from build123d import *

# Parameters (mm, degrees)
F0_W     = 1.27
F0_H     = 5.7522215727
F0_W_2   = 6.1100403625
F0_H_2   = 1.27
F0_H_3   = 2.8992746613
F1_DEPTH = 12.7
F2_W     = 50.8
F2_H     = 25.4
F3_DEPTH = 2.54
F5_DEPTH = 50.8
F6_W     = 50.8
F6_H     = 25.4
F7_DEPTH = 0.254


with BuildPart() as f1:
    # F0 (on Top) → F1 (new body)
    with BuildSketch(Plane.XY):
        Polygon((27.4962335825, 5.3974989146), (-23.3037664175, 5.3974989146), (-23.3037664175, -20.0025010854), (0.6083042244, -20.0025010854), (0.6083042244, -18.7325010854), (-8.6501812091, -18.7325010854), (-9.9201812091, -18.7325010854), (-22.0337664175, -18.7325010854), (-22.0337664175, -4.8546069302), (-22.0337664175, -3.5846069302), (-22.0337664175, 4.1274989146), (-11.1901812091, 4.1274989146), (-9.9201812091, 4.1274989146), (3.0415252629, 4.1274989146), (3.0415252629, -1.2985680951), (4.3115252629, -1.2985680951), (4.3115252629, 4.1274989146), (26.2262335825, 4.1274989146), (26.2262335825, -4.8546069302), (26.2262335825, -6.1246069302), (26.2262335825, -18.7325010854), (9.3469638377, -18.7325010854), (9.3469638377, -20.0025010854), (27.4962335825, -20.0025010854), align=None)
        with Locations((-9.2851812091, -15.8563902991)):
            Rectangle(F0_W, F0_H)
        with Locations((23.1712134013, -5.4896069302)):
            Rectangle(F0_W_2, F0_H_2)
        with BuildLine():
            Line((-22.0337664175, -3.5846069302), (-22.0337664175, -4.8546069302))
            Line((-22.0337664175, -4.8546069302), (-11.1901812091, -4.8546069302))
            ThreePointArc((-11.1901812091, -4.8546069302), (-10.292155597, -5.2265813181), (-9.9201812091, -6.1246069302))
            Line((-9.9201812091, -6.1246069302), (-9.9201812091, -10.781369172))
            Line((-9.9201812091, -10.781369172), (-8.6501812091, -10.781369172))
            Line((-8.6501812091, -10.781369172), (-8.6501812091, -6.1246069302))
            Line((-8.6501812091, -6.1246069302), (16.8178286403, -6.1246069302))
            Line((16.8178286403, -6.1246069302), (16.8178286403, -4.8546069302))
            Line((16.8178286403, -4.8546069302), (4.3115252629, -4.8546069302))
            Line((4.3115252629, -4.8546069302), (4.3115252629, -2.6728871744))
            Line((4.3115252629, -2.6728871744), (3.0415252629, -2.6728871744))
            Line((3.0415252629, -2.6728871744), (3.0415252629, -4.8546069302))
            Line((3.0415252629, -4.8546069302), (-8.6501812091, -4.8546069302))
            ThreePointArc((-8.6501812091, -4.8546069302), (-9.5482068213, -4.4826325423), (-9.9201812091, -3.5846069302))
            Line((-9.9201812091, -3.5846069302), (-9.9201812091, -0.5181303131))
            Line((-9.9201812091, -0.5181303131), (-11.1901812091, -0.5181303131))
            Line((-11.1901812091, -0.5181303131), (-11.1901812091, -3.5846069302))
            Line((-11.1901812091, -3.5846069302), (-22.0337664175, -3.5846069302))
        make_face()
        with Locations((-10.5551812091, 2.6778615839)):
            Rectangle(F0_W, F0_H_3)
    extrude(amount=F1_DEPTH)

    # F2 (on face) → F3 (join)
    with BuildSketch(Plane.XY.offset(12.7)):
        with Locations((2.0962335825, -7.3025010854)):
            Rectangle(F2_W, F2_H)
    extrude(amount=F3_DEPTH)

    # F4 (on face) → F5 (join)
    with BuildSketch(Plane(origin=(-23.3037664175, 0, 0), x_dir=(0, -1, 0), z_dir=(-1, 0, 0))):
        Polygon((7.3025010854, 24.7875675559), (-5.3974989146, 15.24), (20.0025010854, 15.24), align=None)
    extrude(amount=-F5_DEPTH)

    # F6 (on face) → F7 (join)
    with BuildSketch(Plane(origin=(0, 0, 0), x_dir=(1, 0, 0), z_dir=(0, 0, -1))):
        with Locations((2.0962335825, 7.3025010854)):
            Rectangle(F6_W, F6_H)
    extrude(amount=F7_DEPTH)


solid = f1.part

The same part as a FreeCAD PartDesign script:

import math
import FreeCAD as App
import Part
import Sketcher

V = App.Vector
Q = App.Units.Quantity

doc = App.newDocument("Part")
body = doc.addObject("PartDesign::Body", "Body")

sketch1 = body.newObject("Sketcher::SketchObject", "Sketch")
sketch1.AttachmentSupport = (doc.getObject("XY_Plane"), [""])
sketch1.MapMode = "FlatFace"
sketch1.addGeometry(Part.LineSegment(V(27.5, 5.4, 0), V(-23.3, 5.4, 0)), False)
sketch1.addGeometry(Part.LineSegment(V(-23.3, 5.4, 0), V(-23.3, -20, 0)), False)
sketch1.addGeometry(Part.LineSegment(V(-23.3, -20, 0), V(0.6, -20, 0)), False)
sketch1.addGeometry(Part.LineSegment(V(0.6, -20, 0), V(0.6, -18.7, 0)), False)
sketch1.addGeometry(Part.LineSegment(V(0.6, -18.7, 0), V(-8.7, -18.7, 0)), False)
sketch1.addGeometry(Part.LineSegment(V(-8.7, -18.7, 0), V(-8.7, -13, 0)), False)
sketch1.addGeometry(Part.LineSegment(V(-8.7, -13, 0), V(-9.9, -13, 0)), False)
sketch1.addGeometry(Part.LineSegment(V(-9.9, -13, 0), V(-9.9, -18.7, 0)), False)
sketch1.addGeometry(Part.LineSegment(V(-9.9, -18.7, 0), V(-22, -18.7, 0)), False)
sketch1.addGeometry(Part.LineSegment(V(-22, -18.7, 0), V(-22, -4.9, 0)), False)
sketch1.addGeometry(Part.LineSegment(V(-22, -4.9, 0), V(-11.2, -4.9, 0)), False)
sketch1.addGeometry(Part.ArcOfCircle(Part.Circle(V(-11.2, -6.1, 0), V(0, 0, 1), 1.3), math.radians(0), math.radians(90)), False)
sketch1.addGeometry(Part.LineSegment(V(-9.9, -6.1, 0), V(-9.9, -10.8, 0)), False)
sketch1.addGeometry(Part.LineSegment(V(-9.9, -10.8, 0), V(-8.7, -10.8, 0)), False)
sketch1.addGeometry(Part.LineSegment(V(-8.7, -10.8, 0), V(-8.7, -6.1, 0)), False)
sketch1.addGeometry(Part.LineSegment(V(-8.7, -6.1, 0), V(16.8, -6.1, 0)), False)
sketch1.addGeometry(Part.LineSegment(V(16.8, -6.1, 0), V(16.8, -4.9, 0)), False)
sketch1.addGeometry(Part.LineSegment(V(16.8, -4.9, 0), V(4.3, -4.9, 0)), False)
sketch1.addGeometry(Part.LineSegment(V(4.3, -4.9, 0), V(4.3, -2.7, 0)), False)
sketch1.addGeometry(Part.LineSegment(V(4.3, -2.7, 0), V(3, -2.7, 0)), False)
sketch1.addGeometry(Part.LineSegment(V(3, -2.7, 0), V(3, -4.9, 0)), False)
sketch1.addGeometry(Part.LineSegment(V(3, -4.9, 0), V(-8.7, -4.9, 0)), False)
sketch1.addGeometry(Part.ArcOfCircle(Part.Circle(V(-8.7, -3.6, 0), V(0, 0, 1), 1.3), math.radians(180), math.radians(270)), False)
sketch1.addGeometry(Part.LineSegment(V(-9.9, -3.6, 0), V(-9.9, -0.5, 0)), False)
sketch1.addGeometry(Part.LineSegment(V(-9.9, -0.5, 0), V(-11.2, -0.5, 0)), False)
sketch1.addGeometry(Part.LineSegment(V(-11.2, -0.5, 0), V(-11.2, -3.6, 0)), False)
sketch1.addGeometry(Part.LineSegment(V(-11.2, -3.6, 0), V(-22, -3.6, 0)), False)
sketch1.addGeometry(Part.LineSegment(V(-22, -3.6, 0), V(-22, 4.1, 0)), False)
sketch1.addGeometry(Part.LineSegment(V(-22, 4.1, 0), V(-11.2, 4.1, 0)), False)
sketch1.addGeometry(Part.LineSegment(V(-11.2, 4.1, 0), V(-11.2, 1.2, 0)), False)
sketch1.addGeometry(Part.LineSegment(V(-11.2, 1.2, 0), V(-9.9, 1.2, 0)), False)
sketch1.addGeometry(Part.LineSegment(V(-9.9, 1.2, 0), V(-9.9, 4.1, 0)), False)
sketch1.addGeometry(Part.LineSegment(V(-9.9, 4.1, 0), V(3, 4.1, 0)), False)
sketch1.addGeometry(Part.LineSegment(V(3, 4.1, 0), V(3, -1.3, 0)), False)
sketch1.addGeometry(Part.LineSegment(V(3, -1.3, 0), V(4.3, -1.3, 0)), False)
sketch1.addGeometry(Part.LineSegment(V(4.3, -1.3, 0), V(4.3, 4.1, 0)), False)
sketch1.addGeometry(Part.LineSegment(V(4.3, 4.1, 0), V(26.2, 4.1, 0)), False)
sketch1.addGeometry(Part.LineSegment(V(26.2, 4.1, 0), V(26.2, -4.9, 0)), False)
sketch1.addGeometry(Part.LineSegment(V(26.2, -4.9, 0), V(20.1, -4.9, 0)), False)
sketch1.addGeometry(Part.LineSegment(V(20.1, -4.9, 0), V(20.1, -6.1, 0)), False)
sketch1.addGeometry(Part.LineSegment(V(20.1, -6.1, 0), V(26.2, -6.1, 0)), False)
sketch1.addGeometry(Part.LineSegment(V(26.2, -6.1, 0), V(26.2, -18.7, 0)), False)
sketch1.addGeometry(Part.LineSegment(V(26.2, -18.7, 0), V(9.3, -18.7, 0)), False)
sketch1.addGeometry(Part.LineSegment(V(9.3, -18.7, 0), V(9.3, -20, 0)), False)
sketch1.addGeometry(Part.LineSegment(V(9.3, -20, 0), V(27.5, -20, 0)), False)
sketch1.addGeometry(Part.LineSegment(V(27.5, -20, 0), V(27.5, 5.4, 0)), False)
sketch1.addConstraint(Sketcher.Constraint("Coincident", 0, 2, 1, 1))
sketch1.addConstraint(Sketcher.Constraint("Coincident", 1, 2, 2, 1))
sketch1.addConstraint(Sketcher.Constraint("Coincident", 2, 2, 3, 1))
sketch1.addConstraint(Sketcher.Constraint("Coincident", 3, 2, 4, 1))
sketch1.addConstraint(Sketcher.Constraint("Coincident", 4, 2, 5, 1))
sketch1.addConstraint(Sketcher.Constraint("Coincident", 5, 2, 6, 1))
sketch1.addConstraint(Sketcher.Constraint("Coincident", 6, 2, 7, 1))
sketch1.addConstraint(Sketcher.Constraint("Coincident", 7, 2, 8, 1))
sketch1.addConstraint(Sketcher.Constraint("Coincident", 8, 2, 9, 1))
sketch1.addConstraint(Sketcher.Constraint("Coincident", 9, 2, 10, 1))
sketch1.addConstraint(Sketcher.Constraint("Tangent", 10, 2, 11, 2))
sketch1.addConstraint(Sketcher.Constraint("Tangent", 11, 1, 12, 1))
sketch1.addConstraint(Sketcher.Constraint("Coincident", 12, 2, 13, 1))
sketch1.addConstraint(Sketcher.Constraint("Coincident", 13, 2, 14, 1))
sketch1.addConstraint(Sketcher.Constraint("Coincident", 14, 2, 15, 1))
sketch1.addConstraint(Sketcher.Constraint("Coincident", 15, 2, 16, 1))
sketch1.addConstraint(Sketcher.Constraint("Coincident", 16, 2, 17, 1))
sketch1.addConstraint(Sketcher.Constraint("Coincident", 17, 2, 18, 1))
sketch1.addConstraint(Sketcher.Constraint("Coincident", 18, 2, 19, 1))
sketch1.addConstraint(Sketcher.Constraint("Coincident", 19, 2, 20, 1))
sketch1.addConstraint(Sketcher.Constraint("Coincident", 20, 2, 21, 1))
sketch1.addConstraint(Sketcher.Constraint("Tangent", 21, 2, 22, 2))
sketch1.addConstraint(Sketcher.Constraint("Tangent", 22, 1, 23, 1))
sketch1.addConstraint(Sketcher.Constraint("Coincident", 23, 2, 24, 1))
sketch1.addConstraint(Sketcher.Constraint("Coincident", 24, 2, 25, 1))
sketch1.addConstraint(Sketcher.Constraint("Coincident", 25, 2, 26, 1))
sketch1.addConstraint(Sketcher.Constraint("Coincident", 26, 2, 27, 1))
sketch1.addConstraint(Sketcher.Constraint("Coincident", 27, 2, 28, 1))
sketch1.addConstraint(Sketcher.Constraint("Coincident", 28, 2, 29, 1))
sketch1.addConstraint(Sketcher.Constraint("Coincident", 29, 2, 30, 1))
sketch1.addConstraint(Sketcher.Constraint("Coincident", 30, 2, 31, 1))
sketch1.addConstraint(Sketcher.Constraint("Coincident", 31, 2, 32, 1))
sketch1.addConstraint(Sketcher.Constraint("Coincident", 32, 2, 33, 1))
sketch1.addConstraint(Sketcher.Constraint("Coincident", 33, 2, 34, 1))
sketch1.addConstraint(Sketcher.Constraint("Coincident", 34, 2, 35, 1))
sketch1.addConstraint(Sketcher.Constraint("Coincident", 35, 2, 36, 1))
sketch1.addConstraint(Sketcher.Constraint("Coincident", 36, 2, 37, 1))
sketch1.addConstraint(Sketcher.Constraint("Coincident", 37, 2, 38, 1))
sketch1.addConstraint(Sketcher.Constraint("Coincident", 38, 2, 39, 1))
sketch1.addConstraint(Sketcher.Constraint("Coincident", 39, 2, 40, 1))
sketch1.addConstraint(Sketcher.Constraint("Coincident", 40, 2, 41, 1))
sketch1.addConstraint(Sketcher.Constraint("Coincident", 41, 2, 42, 1))
sketch1.addConstraint(Sketcher.Constraint("Coincident", 42, 2, 43, 1))
sketch1.addConstraint(Sketcher.Constraint("Coincident", 43, 2, 44, 1))
sketch1.addConstraint(Sketcher.Constraint("Coincident", 44, 2, 45, 1))
sketch1.addConstraint(Sketcher.Constraint("Coincident", 45, 2, 0, 1))
sketch1.addConstraint(Sketcher.Constraint("Horizontal", 0))
sketch1.addConstraint(Sketcher.Constraint("Vertical", 1))
sketch1.addConstraint(Sketcher.Constraint("Horizontal", 2))
sketch1.addConstraint(Sketcher.Constraint("Vertical", 3))
sketch1.addConstraint(Sketcher.Constraint("Horizontal", 4))
sketch1.addConstraint(Sketcher.Constraint("Vertical", 5))
sketch1.addConstraint(Sketcher.Constraint("Horizontal", 6))
sketch1.addConstraint(Sketcher.Constraint("Vertical", 7))
sketch1.addConstraint(Sketcher.Constraint("Horizontal", 8))
sketch1.addConstraint(Sketcher.Constraint("Vertical", 9))
sketch1.addConstraint(Sketcher.Constraint("Horizontal", 10))
sketch1.addConstraint(Sketcher.Constraint("Vertical", 12))
sketch1.addConstraint(Sketcher.Constraint("Horizontal", 13))
sketch1.addConstraint(Sketcher.Constraint("Vertical", 14))
sketch1.addConstraint(Sketcher.Constraint("Horizontal", 15))
sketch1.addConstraint(Sketcher.Constraint("Vertical", 16))
sketch1.addConstraint(Sketcher.Constraint("Horizontal", 17))
sketch1.addConstraint(Sketcher.Constraint("Vertical", 18))
sketch1.addConstraint(Sketcher.Constraint("Horizontal", 19))
sketch1.addConstraint(Sketcher.Constraint("Vertical", 20))
sketch1.addConstraint(Sketcher.Constraint("Horizontal", 21))
sketch1.addConstraint(Sketcher.Constraint("Vertical", 23))
sketch1.addConstraint(Sketcher.Constraint("Horizontal", 24))
sketch1.addConstraint(Sketcher.Constraint("Vertical", 25))
sketch1.addConstraint(Sketcher.Constraint("Horizontal", 26))
sketch1.addConstraint(Sketcher.Constraint("Vertical", 27))
sketch1.addConstraint(Sketcher.Constraint("Horizontal", 28))
sketch1.addConstraint(Sketcher.Constraint("Vertical", 29))
sketch1.addConstraint(Sketcher.Constraint("Horizontal", 30))
sketch1.addConstraint(Sketcher.Constraint("Vertical", 31))
sketch1.addConstraint(Sketcher.Constraint("Horizontal", 32))
sketch1.addConstraint(Sketcher.Constraint("Vertical", 33))
sketch1.addConstraint(Sketcher.Constraint("Horizontal", 34))
sketch1.addConstraint(Sketcher.Constraint("Vertical", 35))
sketch1.addConstraint(Sketcher.Constraint("Horizontal", 36))
sketch1.addConstraint(Sketcher.Constraint("Vertical", 37))
sketch1.addConstraint(Sketcher.Constraint("Horizontal", 38))
sketch1.addConstraint(Sketcher.Constraint("Vertical", 39))
sketch1.addConstraint(Sketcher.Constraint("Horizontal", 40))
sketch1.addConstraint(Sketcher.Constraint("Vertical", 41))
sketch1.addConstraint(Sketcher.Constraint("Horizontal", 42))
sketch1.addConstraint(Sketcher.Constraint("Vertical", 43))
sketch1.addConstraint(Sketcher.Constraint("Horizontal", 44))
sketch1.addConstraint(Sketcher.Constraint("Vertical", 45))
sketch1.addConstraint(Sketcher.Constraint("Equal", 11, 22))
sketch1.addConstraint(Sketcher.Constraint("Horizontal", 4, 2, 7, 2))
sketch1.addConstraint(Sketcher.Constraint("Horizontal", 11, 1, 14, 2))
sketch1.addConstraint(Sketcher.Constraint("Horizontal", 10, 2, 16, 2))
sketch1.addConstraint(Sketcher.Constraint("Horizontal", 17, 2, 20, 2))
sketch1.addConstraint(Sketcher.Constraint("Horizontal", 22, 1, 25, 2))
sketch1.addConstraint(Sketcher.Constraint("Horizontal", 28, 2, 31, 2))
sketch1.addConstraint(Sketcher.Constraint("Horizontal", 32, 2, 35, 2))
sketch1.addConstraint(Sketcher.Constraint("Horizontal", 21, 2, 37, 2))
sketch1.addConstraint(Sketcher.Constraint("Horizontal", 15, 2, 39, 2))
sketch1.addConstraint(Sketcher.Constraint("Horizontal", 8, 2, 41, 2))
sketch1.addConstraint(Sketcher.Constraint("Horizontal", 2, 2, 43, 2))
sketch1.addConstraint(Sketcher.Constraint("Vertical", 22, 3, 4, 2))
sketch1.addConstraint(Sketcher.Constraint("Vertical", 7, 2, 11, 1))
sketch1.addConstraint(Sketcher.Constraint("Vertical", 5, 2, 13, 2))
sketch1.addConstraint(Sketcher.Constraint("Vertical", 12, 2, 22, 1))
sketch1.addConstraint(Sketcher.Constraint("Vertical", 10, 2, 24, 2))
sketch1.addConstraint(Sketcher.Constraint("Vertical", 9, 2, 26, 2))
sketch1.addConstraint(Sketcher.Constraint("Vertical", 25, 2, 28, 2))
sketch1.addConstraint(Sketcher.Constraint("Vertical", 23, 2, 30, 2))
sketch1.addConstraint(Sketcher.Constraint("Vertical", 20, 2, 32, 2))
sketch1.addConstraint(Sketcher.Constraint("Vertical", 18, 2, 34, 2))
sketch1.addConstraint(Sketcher.Constraint("Vertical", 37, 2, 40, 2))
sketch1.addConstraint(Sketcher.Constraint("Equal", 13, 19))
sketch1.addConstraint(Sketcher.Constraint("Equal", 34, 3))
sketch1.addConstraint(Sketcher.Constraint("DistanceX", 0, 2, 0, 1, Q("2 in")))
sketch1.addConstraint(Sketcher.Constraint("DistanceY", 1, 2, 1, 1, Q("1 in")))
sketch1.addConstraint(Sketcher.Constraint("Radius", 11, Q("0.05 in")))
sketch1.addConstraint(Sketcher.Constraint("DistanceX", 1, 2, 8, 2, Q("0.05 in")))
sketch1.addConstraint(Sketcher.Constraint("DistanceY", 27, 2, 0, 2, Q("0.05 in")))
sketch1.addConstraint(Sketcher.Constraint("DistanceX", 41, 2, 44, 2, Q("0.05 in")))
sketch1.addConstraint(Sketcher.Constraint("DistanceY", -1, 1, 0, 2, Q("0.2125 in")))
sketch1.addConstraint(Sketcher.Constraint("DistanceX", 2, 1, 2, 2, 23.912071))
sketch1.addConstraint(Sketcher.Constraint("DistanceX", 15, 1, 15, 2, 25.46801))
sketch1.addConstraint(Sketcher.Constraint("DistanceX", 36, 1, 36, 2, 21.914708))
sketch1.addConstraint(Sketcher.Constraint("DistanceX", 38, 2, 38, 1, 6.11004))
sketch1.addConstraint(Sketcher.Constraint("DistanceX", 42, 2, 42, 1, 16.87927))
sketch1.addConstraint(Sketcher.Constraint("DistanceY", 5, 1, 5, 2, 5.752222))
sketch1.addConstraint(Sketcher.Constraint("DistanceY", 18, 1, 18, 2, 2.18172))
sketch1.addConstraint(Sketcher.Constraint("DistanceX", 4, 2, 4, 1, 9.258485))
sketch1.addConstraint(Sketcher.Constraint("DistanceY", 9, 1, 9, 2, 13.877894))
sketch1.addConstraint(Sketcher.Constraint("DistanceY", 12, 2, 12, 1, 4.656762))
sketch1.addConstraint(Sketcher.Constraint("DistanceY", 23, 1, 23, 2, 3.066477))
sketch1.addConstraint(Sketcher.Constraint("DistanceY", 29, 2, 29, 1, 2.899275))
sketch1.addConstraint(Sketcher.Constraint("DistanceY", 33, 2, 33, 1, 5.426067))
sketch1.addConstraint(Sketcher.Constraint("DistanceX", 11, 3, -1, 1, 11.190181))
pad1 = body.newObject("PartDesign::Pad", "Pad")
pad1.Profile = sketch1
pad1.Length = Q("0.5 in")

sketch2 = body.newObject("Sketcher::SketchObject", "Sketch001")
sketch2.AttachmentSupport = (doc.getObject("XY_Plane"), [""])
sketch2.MapMode = "FlatFace"
sketch2.AttachmentOffset = App.Placement(V(0, 0, 0.5 * 25.4), App.Rotation())
sketch2.addGeometry(Part.LineSegment(V(-23, 5, 0), V(-23, -20, 0)), False)
sketch2.addGeometry(Part.LineSegment(V(-23, -20, 0), V(27, -20, 0)), False)
sketch2.addGeometry(Part.LineSegment(V(27, -20, 0), V(27, 5, 0)), False)
sketch2.addGeometry(Part.LineSegment(V(27, 5, 0), V(-23, 5, 0)), False)
sketch2.addConstraint(Sketcher.Constraint("Coincident", 0, 2, 1, 1))
sketch2.addConstraint(Sketcher.Constraint("Coincident", 1, 2, 2, 1))
sketch2.addConstraint(Sketcher.Constraint("Coincident", 2, 2, 3, 1))
sketch2.addConstraint(Sketcher.Constraint("Coincident", 3, 2, 0, 1))
sketch2.addConstraint(Sketcher.Constraint("Vertical", 0))
sketch2.addConstraint(Sketcher.Constraint("Horizontal", 1))
sketch2.addConstraint(Sketcher.Constraint("Vertical", 2))
sketch2.addConstraint(Sketcher.Constraint("Horizontal", 3))
sketch2.addConstraint(Sketcher.Constraint("DistanceX", 1, 1, 1, 2, Q("2 in")))
sketch2.addConstraint(Sketcher.Constraint("DistanceY", 0, 2, 0, 1, Q("1 in")))
sketch2.addConstraint(Sketcher.Constraint("DistanceY", 0, 2, -1, 1, Q("0.7875 in")))
sketch2.addConstraint(Sketcher.Constraint("DistanceX", 0, 2, -1, 1, 23.303766))
pad2 = body.newObject("PartDesign::Pad", "Pad001")
pad2.Profile = sketch2
pad2.Length = Q("0.1 in")

sketch3 = body.newObject("Sketcher::SketchObject", "Sketch002")
sketch3.AttachmentSupport = (doc.getObject("YZ_Plane"), [""])
sketch3.MapMode = "FlatFace"
sketch3.AttachmentOffset = App.Placement(V(0, 0, -23.303766), App.Rotation())
sketch3.addGeometry(Part.LineSegment(V(-7, 25, 0), V(5, 15, 0)), False)
sketch3.addGeometry(Part.LineSegment(V(5, 15, 0), V(-20, 15, 0)), False)
sketch3.addGeometry(Part.LineSegment(V(-20, 15, 0), V(-7, 25, 0)), False)
sketch3.addConstraint(Sketcher.Constraint("Coincident", 0, 2, 1, 1))
sketch3.addConstraint(Sketcher.Constraint("Coincident", 1, 2, 2, 1))
sketch3.addConstraint(Sketcher.Constraint("Coincident", 2, 2, 0, 1))
sketch3.addConstraint(Sketcher.Constraint("Horizontal", 1))
sketch3.addConstraint(Sketcher.Constraint("Equal", 0, 2))
sketch3.addConstraint(Sketcher.Constraint("DistanceX", 1, 2, 1, 1, Q("1 in")))
sketch3.addConstraint(Sketcher.Constraint("DistanceY", -1, 1, 0, 2, Q("0.6 in")))
sketch3.addConstraint(Sketcher.Constraint("DistanceX", -1, 1, 0, 2, Q("0.2125 in")))
sketch3.addConstraint(Sketcher.Constraint("Distance", 0, 15.888551))
pad3 = body.newObject("PartDesign::Pad", "Pad002")
pad3.Profile = sketch3
pad3.Length = Q("2 in")

sketch4 = body.newObject("Sketcher::SketchObject", "Sketch003")
sketch4.AttachmentSupport = (doc.getObject("XY_Plane"), [""])
sketch4.MapMode = "FlatFace"
sketch4.addGeometry(Part.LineSegment(V(-23, -20, 0), V(-23, 5, 0)), False)
sketch4.addGeometry(Part.LineSegment(V(-23, 5, 0), V(27, 5, 0)), False)
sketch4.addGeometry(Part.LineSegment(V(27, 5, 0), V(27, -20, 0)), False)
sketch4.addGeometry(Part.LineSegment(V(27, -20, 0), V(-23, -20, 0)), False)
sketch4.addConstraint(Sketcher.Constraint("Coincident", 0, 2, 1, 1))
sketch4.addConstraint(Sketcher.Constraint("Coincident", 1, 2, 2, 1))
sketch4.addConstraint(Sketcher.Constraint("Coincident", 2, 2, 3, 1))
sketch4.addConstraint(Sketcher.Constraint("Coincident", 3, 2, 0, 1))
sketch4.addConstraint(Sketcher.Constraint("Vertical", 0))
sketch4.addConstraint(Sketcher.Constraint("Horizontal", 1))
sketch4.addConstraint(Sketcher.Constraint("Vertical", 2))
sketch4.addConstraint(Sketcher.Constraint("Horizontal", 3))
sketch4.addConstraint(Sketcher.Constraint("DistanceX", 1, 1, 1, 2, Q("2 in")))
sketch4.addConstraint(Sketcher.Constraint("DistanceY", 0, 1, 0, 2, Q("1 in")))
sketch4.addConstraint(Sketcher.Constraint("DistanceY", -1, 1, 0, 2, Q("0.2125 in")))
sketch4.addConstraint(Sketcher.Constraint("DistanceX", 0, 2, -1, 1, 23.303766))
pad4 = body.newObject("PartDesign::Pad", "Pad003")
pad4.Profile = sketch4
pad4.Length = Q("0.01 in")
pad4.Reversed = True

doc.recompute()
